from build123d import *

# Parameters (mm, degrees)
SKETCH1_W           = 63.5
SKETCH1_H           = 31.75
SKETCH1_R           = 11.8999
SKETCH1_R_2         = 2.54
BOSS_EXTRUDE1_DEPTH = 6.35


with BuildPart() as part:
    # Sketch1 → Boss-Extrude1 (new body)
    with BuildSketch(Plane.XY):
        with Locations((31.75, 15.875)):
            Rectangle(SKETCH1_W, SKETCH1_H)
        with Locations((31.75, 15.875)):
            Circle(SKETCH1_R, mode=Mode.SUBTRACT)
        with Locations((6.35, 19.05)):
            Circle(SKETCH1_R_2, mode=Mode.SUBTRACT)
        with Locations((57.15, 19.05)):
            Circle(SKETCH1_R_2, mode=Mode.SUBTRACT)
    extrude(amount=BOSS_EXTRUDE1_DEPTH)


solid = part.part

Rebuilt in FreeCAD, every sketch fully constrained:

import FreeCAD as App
import Part
import Sketcher

V = App.Vector
Q = App.Units.Quantity

doc = App.newDocument("Part")
params = doc.addObject("Spreadsheet::Sheet", "Params")
for row, (alias, value) in enumerate([
    ("sketch1_diameter", "0.2 in"),
    ("sketch1_diameter2", "0.937 in"),
    ("sketch1_width", "2.5 in"),
    ("sketch1_height", "1.25 in"),
    ("pad1_length", "0.25 in"),
], start=1):
    params.set(f"A{row}", alias)
    params.set(f"B{row}", "=" + value)
    params.setAlias(f"B{row}", alias)

body = doc.addObject("PartDesign::Body", "Body")

# Sketch on XY plane
sketch1 = body.newObject("Sketcher::SketchObject", "Sketch")
sketch1.AttachmentSupport = (doc.getObject("XY_Plane"), [""])
sketch1.MapMode = "FlatFace"
sketch1.addGeometry(Part.LineSegment(V(0, 31.8, 0), V(0, 0, 0)), False)
sketch1.addGeometry(Part.LineSegment(V(0, 0, 0), V(63.5, 0, 0)), False)
sketch1.addGeometry(Part.LineSegment(V(63.5, 0, 0), V(63.5, 31.8, 0)), False)
sketch1.addGeometry(Part.LineSegment(V(63.5, 31.8, 0), V(0, 31.8, 0)), False)
sketch1.addGeometry(Part.Circle(V(6.3, 19.1, 0), V(0, 0, 1), 2.5), False)
sketch1.addGeometry(Part.Circle(V(31.8, 15.9, 0), V(0, 0, 1), 11.9), False)
sketch1.addGeometry(Part.Circle(V(57.1, 19.1, 0), V(0, 0, 1), 2.5), False)
sketch1.addConstraint(Sketcher.Constraint("Coincident", 0, 2, 1, 1))
sketch1.addConstraint(Sketcher.Constraint("Coincident", 1, 2, 2, 1))
sketch1.addConstraint(Sketcher.Constraint("Coincident", 2, 2, 3, 1))
sketch1.addConstraint(Sketcher.Constraint("Coincident", 3, 2, 0, 1))
sketch1.addConstraint(Sketcher.Constraint("Vertical", 0))
sketch1.addConstraint(Sketcher.Constraint("Horizontal", 1))
sketch1.addConstraint(Sketcher.Constraint("Vertical", 2))
sketch1.addConstraint(Sketcher.Constraint("Horizontal", 3))
sketch1.addConstraint(Sketcher.Constraint("Coincident", 0, 2, -1, 1))
sketch1.addConstraint(Sketcher.Constraint("Equal", 4, 6))
sketch1.addConstraint(Sketcher.Constraint("Horizontal", 4, 3, 6, 3))
sketch1.addConstraint(Sketcher.Constraint("Diameter", 4, Q("0.2 in")))
sketch1.addConstraint(Sketcher.Constraint("Diameter", 5, Q("0.937 in")))
sketch1.addConstraint(Sketcher.Constraint("DistanceX", 1, 1, 1, 2, Q("2.5 in")))
sketch1.addConstraint(Sketcher.Constraint("DistanceX", 4, 3, 5, 3, Q("1 in")))
sketch1.addConstraint(Sketcher.Constraint("DistanceX", 5, 3, 6, 3, Q("1 in")))
sketch1.addConstraint(Sketcher.Constraint("DistanceY", 0, 2, 0, 1, Q("1.25 in")))
sketch1.addConstraint(Sketcher.Constraint("DistanceY", 6, 3, 2, 2, Q("0.5 in")))
sketch1.addConstraint(Sketcher.Constraint("DistanceX", -1, 1, 4, 3, Q("0.25 in")))
sketch1.addConstraint(Sketcher.Constraint("DistanceY", -1, 1, 5, 3, Q("0.625 in")))
sketch1.setExpression("Constraints[11]", "Params.sketch1_diameter")
sketch1.setExpression("Constraints[12]", "Params.sketch1_diameter2")
sketch1.setExpression("Constraints[13]", "Params.sketch1_width")
sketch1.setExpression("Constraints[16]", "Params.sketch1_height")
pad1 = body.newObject("PartDesign::Pad", "Pad")
pad1.Profile = sketch1
pad1.setExpression("Length", "Params.pad1_length")

doc.recompute()
